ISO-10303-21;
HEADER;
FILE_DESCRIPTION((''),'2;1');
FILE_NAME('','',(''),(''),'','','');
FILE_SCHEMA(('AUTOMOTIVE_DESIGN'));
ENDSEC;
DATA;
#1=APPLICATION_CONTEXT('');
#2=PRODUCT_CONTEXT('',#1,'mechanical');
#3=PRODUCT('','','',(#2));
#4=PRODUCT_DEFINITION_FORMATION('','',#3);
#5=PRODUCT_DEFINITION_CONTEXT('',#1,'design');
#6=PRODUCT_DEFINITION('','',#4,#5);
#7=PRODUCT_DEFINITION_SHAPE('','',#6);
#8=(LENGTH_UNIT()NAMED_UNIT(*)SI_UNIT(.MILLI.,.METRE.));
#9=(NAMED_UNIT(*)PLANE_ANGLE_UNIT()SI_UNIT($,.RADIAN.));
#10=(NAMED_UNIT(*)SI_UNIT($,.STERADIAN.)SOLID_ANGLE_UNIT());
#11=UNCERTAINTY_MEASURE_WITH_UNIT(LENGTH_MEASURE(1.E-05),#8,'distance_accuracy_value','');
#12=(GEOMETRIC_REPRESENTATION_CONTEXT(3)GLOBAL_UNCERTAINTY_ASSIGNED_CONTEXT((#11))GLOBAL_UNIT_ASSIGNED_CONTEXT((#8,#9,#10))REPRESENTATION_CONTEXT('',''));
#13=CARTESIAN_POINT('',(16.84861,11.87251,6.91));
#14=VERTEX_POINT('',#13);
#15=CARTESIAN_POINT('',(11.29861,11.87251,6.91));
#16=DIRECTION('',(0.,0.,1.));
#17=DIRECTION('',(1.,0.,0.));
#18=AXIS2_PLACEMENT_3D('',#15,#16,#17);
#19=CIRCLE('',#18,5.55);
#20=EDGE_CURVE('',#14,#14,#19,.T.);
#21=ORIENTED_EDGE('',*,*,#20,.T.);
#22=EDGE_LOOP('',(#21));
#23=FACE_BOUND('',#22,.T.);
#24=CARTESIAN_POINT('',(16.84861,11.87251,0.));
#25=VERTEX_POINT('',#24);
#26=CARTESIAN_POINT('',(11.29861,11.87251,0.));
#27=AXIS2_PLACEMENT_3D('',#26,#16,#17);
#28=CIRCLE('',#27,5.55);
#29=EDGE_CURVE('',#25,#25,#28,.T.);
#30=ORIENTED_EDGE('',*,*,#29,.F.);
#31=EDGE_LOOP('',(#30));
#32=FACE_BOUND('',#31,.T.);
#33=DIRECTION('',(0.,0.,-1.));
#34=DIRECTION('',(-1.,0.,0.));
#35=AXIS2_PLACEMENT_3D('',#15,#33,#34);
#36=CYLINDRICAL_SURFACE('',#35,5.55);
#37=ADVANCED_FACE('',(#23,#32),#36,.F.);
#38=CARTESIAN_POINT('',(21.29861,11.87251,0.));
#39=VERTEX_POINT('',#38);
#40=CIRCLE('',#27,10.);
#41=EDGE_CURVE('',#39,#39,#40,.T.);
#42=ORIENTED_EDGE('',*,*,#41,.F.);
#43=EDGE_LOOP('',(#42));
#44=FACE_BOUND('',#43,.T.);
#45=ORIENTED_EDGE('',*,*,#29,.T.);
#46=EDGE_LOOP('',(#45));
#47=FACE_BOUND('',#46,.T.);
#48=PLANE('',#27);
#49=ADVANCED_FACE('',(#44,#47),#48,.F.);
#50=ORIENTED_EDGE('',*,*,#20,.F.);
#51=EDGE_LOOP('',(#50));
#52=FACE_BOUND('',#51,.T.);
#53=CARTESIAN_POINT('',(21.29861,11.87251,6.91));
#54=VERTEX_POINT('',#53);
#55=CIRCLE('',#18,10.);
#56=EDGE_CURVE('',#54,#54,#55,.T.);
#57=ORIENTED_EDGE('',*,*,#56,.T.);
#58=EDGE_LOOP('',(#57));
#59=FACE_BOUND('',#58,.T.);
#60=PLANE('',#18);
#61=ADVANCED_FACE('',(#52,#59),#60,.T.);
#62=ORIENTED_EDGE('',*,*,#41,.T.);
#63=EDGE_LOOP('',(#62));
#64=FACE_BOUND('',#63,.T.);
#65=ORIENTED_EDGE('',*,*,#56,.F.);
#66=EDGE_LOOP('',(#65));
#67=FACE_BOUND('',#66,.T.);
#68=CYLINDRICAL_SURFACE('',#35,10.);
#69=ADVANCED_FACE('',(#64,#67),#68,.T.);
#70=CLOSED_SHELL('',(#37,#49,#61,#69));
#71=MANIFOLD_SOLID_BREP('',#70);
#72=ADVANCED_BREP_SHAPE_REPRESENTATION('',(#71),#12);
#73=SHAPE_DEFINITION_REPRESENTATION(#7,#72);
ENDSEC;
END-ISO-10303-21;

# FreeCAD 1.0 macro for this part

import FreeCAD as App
import Part
import Sketcher
Q = App.Units.Quantity

doc = App.newDocument("Part")
body = doc.addObject("PartDesign::Body", "Body")

sketch1 = body.newObject("Sketcher::SketchObject", "Sketch")
sketch1.AttachmentSupport = (doc.getObject("XY_Plane"), [""])
sketch1.MapMode = "FlatFace"
sketch1.addGeometry(Part.Circle(App.Vector(11.29861, 11.87251, 0), App.Vector(0, 0, 1), 10), False)
sketch1.addGeometry(Part.Circle(App.Vector(11.29861, 11.87251, 0), App.Vector(0, 0, 1), 5.55), False)
sketch1.addConstraint(Sketcher.Constraint("Coincident", 1, 3, 0, 3))
sketch1.addConstraint(Sketcher.Constraint("Diameter", 0, Q("20 mm")))
sketch1.addConstraint(Sketcher.Constraint("Diameter", 1, Q("11.1 mm")))
sketch1.addConstraint(Sketcher.Constraint("DistanceX", -1, 1, 0, 3, Q("11.29861 mm")))
sketch1.addConstraint(Sketcher.Constraint("DistanceY", -1, 1, 0, 3, Q("11.87251 mm")))
pad1 = body.newObject("PartDesign::Pad", "Pad")
pad1.Profile = sketch1
pad1.Length = 6.91

doc.recompute()
